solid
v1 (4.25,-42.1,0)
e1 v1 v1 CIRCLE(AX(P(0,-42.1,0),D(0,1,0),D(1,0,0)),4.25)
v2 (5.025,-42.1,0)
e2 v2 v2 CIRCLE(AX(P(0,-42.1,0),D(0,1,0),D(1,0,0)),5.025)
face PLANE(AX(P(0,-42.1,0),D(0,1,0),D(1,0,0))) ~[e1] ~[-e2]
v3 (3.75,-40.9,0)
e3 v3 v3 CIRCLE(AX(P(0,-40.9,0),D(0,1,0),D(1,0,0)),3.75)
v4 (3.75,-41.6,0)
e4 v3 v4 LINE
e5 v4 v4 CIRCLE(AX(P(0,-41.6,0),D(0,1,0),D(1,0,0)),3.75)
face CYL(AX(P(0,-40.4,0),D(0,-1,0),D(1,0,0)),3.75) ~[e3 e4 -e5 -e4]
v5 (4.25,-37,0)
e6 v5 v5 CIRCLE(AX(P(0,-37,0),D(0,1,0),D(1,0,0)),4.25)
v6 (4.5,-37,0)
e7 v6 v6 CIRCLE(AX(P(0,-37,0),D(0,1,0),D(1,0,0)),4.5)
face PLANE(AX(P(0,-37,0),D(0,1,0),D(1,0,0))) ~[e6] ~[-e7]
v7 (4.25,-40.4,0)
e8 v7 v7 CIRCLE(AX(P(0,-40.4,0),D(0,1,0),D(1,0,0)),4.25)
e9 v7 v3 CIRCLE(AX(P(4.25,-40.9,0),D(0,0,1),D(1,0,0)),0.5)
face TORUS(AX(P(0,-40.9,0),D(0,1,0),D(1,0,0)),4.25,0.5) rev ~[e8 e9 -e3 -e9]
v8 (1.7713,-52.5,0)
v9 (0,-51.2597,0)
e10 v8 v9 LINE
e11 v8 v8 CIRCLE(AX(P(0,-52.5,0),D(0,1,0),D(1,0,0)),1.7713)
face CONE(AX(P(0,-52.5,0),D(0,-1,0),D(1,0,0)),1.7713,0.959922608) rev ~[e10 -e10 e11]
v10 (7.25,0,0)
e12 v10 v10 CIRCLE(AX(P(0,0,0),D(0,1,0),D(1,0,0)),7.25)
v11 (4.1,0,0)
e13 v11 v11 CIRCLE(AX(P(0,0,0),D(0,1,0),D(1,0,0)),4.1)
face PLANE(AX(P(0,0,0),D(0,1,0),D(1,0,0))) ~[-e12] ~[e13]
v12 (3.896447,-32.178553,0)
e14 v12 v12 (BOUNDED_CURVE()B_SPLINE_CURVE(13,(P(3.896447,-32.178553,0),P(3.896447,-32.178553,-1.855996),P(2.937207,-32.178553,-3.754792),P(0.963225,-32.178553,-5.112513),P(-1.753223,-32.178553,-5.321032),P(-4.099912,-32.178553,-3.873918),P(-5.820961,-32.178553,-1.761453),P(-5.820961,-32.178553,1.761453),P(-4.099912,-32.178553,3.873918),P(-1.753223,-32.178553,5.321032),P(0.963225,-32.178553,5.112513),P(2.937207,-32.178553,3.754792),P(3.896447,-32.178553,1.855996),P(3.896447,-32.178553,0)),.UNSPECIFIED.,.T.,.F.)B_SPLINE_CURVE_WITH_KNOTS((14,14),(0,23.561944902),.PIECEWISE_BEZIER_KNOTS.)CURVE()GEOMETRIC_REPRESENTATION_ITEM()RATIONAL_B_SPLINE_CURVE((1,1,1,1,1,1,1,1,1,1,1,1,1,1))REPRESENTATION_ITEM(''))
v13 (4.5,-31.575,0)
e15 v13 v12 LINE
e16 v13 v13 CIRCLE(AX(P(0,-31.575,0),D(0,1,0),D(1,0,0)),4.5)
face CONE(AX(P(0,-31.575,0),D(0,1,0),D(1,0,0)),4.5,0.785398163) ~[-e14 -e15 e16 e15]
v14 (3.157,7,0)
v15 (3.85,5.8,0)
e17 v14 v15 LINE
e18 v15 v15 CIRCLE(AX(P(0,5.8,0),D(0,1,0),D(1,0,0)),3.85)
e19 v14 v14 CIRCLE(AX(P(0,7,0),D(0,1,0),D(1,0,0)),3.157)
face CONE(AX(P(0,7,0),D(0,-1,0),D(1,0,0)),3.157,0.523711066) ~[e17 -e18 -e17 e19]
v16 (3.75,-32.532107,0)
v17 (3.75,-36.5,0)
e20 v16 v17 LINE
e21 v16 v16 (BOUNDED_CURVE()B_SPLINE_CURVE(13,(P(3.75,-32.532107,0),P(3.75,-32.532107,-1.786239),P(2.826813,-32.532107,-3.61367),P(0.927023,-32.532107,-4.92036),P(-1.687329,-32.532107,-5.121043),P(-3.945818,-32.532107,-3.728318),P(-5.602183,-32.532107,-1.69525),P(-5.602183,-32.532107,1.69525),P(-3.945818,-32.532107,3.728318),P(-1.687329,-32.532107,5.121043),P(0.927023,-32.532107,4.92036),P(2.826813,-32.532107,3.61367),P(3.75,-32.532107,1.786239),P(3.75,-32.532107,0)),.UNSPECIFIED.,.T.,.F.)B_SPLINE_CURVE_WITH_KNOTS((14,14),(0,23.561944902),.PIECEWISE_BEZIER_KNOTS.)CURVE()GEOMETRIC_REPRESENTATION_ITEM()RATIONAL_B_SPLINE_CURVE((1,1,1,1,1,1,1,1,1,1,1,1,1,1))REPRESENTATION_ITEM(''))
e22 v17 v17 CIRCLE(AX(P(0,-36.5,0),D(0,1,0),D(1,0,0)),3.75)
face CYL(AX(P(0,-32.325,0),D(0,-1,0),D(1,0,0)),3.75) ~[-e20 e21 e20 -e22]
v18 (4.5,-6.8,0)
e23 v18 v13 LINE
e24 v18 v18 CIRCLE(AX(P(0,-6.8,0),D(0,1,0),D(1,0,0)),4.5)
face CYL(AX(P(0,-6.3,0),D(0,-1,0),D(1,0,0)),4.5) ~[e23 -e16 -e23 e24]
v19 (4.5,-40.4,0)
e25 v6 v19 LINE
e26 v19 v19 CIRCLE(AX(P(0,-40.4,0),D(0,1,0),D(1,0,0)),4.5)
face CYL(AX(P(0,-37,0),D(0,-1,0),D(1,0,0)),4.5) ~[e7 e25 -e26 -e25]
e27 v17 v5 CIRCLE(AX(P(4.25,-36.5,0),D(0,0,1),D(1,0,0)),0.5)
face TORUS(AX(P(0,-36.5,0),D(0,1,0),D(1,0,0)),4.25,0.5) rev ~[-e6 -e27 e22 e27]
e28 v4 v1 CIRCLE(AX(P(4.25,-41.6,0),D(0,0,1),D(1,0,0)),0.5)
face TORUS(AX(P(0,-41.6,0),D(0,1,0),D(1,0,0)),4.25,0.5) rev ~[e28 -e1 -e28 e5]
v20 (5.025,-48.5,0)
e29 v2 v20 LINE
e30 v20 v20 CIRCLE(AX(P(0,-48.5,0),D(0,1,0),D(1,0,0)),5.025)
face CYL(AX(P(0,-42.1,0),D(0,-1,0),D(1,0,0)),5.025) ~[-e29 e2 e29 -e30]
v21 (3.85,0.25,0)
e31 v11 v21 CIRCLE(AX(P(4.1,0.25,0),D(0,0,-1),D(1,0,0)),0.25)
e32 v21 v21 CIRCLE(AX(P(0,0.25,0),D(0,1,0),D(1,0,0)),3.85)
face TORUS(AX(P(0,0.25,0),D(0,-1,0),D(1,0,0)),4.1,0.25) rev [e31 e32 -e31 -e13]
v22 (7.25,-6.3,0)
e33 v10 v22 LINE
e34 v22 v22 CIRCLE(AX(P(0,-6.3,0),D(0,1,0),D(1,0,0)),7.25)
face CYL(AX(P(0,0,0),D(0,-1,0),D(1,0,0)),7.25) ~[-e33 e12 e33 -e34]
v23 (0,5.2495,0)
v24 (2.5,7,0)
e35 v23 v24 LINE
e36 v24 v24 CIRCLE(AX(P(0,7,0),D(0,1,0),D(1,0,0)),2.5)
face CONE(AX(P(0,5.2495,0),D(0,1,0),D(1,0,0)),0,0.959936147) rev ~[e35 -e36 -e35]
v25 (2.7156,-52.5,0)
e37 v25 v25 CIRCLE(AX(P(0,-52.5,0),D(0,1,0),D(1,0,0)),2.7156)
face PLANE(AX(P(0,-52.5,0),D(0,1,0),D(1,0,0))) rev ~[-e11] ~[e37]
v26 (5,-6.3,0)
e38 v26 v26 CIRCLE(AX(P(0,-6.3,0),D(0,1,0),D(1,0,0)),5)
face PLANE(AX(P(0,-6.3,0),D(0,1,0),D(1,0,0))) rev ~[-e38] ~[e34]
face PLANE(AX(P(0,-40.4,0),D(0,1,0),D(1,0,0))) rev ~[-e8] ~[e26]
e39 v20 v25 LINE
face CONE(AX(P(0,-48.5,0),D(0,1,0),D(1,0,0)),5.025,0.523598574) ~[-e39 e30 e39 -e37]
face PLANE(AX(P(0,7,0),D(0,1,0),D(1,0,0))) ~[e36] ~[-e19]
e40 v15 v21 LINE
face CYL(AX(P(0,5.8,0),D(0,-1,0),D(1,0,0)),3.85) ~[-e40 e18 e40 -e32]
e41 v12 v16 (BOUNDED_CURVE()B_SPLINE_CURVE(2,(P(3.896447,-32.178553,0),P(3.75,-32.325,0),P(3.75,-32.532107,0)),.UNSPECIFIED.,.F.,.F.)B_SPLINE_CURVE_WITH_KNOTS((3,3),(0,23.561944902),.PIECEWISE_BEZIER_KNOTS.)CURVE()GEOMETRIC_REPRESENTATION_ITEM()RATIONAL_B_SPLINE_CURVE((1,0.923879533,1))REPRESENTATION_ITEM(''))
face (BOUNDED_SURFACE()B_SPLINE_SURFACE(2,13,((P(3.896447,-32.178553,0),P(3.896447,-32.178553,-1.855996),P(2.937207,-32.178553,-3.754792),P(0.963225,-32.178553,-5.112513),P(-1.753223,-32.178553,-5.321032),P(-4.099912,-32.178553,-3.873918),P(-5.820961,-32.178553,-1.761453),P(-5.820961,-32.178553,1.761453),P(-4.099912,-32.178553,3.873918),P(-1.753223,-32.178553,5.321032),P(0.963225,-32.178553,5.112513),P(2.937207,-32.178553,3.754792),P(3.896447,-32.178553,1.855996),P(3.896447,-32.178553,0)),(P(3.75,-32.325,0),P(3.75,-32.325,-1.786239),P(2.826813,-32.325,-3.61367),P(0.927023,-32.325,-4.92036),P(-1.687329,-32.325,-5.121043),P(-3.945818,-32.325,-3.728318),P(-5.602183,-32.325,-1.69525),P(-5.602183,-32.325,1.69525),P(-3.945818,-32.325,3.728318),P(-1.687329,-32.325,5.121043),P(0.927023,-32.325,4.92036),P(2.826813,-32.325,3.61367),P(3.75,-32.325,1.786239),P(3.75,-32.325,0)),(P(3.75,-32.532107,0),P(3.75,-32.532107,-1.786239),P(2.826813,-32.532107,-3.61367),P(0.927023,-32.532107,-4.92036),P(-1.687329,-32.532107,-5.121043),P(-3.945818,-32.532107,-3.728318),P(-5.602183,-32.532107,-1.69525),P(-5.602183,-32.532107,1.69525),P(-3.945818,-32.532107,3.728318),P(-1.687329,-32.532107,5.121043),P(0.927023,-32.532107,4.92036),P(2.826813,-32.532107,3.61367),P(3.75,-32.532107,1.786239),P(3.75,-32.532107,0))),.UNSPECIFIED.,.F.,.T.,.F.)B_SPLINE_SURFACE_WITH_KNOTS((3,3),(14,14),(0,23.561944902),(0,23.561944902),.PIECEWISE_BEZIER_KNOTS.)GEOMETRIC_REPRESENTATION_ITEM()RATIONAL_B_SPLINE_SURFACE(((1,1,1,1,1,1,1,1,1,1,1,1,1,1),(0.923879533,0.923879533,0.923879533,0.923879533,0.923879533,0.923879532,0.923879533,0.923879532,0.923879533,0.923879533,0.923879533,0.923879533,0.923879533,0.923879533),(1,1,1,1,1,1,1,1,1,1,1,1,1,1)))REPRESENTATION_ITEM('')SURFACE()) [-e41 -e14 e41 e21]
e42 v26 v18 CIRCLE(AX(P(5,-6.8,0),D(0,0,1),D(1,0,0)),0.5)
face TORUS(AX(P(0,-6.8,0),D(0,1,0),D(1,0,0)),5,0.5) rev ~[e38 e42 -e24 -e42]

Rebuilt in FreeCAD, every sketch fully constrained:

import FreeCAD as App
import Part
import Sketcher
from FreeCAD import Vector
Q = App.Units.Quantity


def edges_at(feature, points):
    """Names of the edges that pass closest to the given points."""
    edges = feature.Shape.Edges
    near = lambda p: min(range(len(edges)), key=lambda i: edges[i].distToShape(Part.Vertex(*p))[0])
    return sorted({f"Edge{near(p) + 1}" for p in points})

doc = App.newDocument("Part")
body = doc.addObject("PartDesign::Body", "Body")

# Sketch on XY plane
sketch1 = doc.addObject("Sketcher::SketchObject", "Sketch")
body.addObject(sketch1)
sketch1.AttachmentSupport = (doc.XY_Plane, [""])
sketch1.MapMode = "FlatFace"
sketch1.addGeometry(Part.LineSegment(Vector(2.5, 7, 0), Vector(0, 5.2, 0)), False)
sketch1.addGeometry(Part.LineSegment(Vector(0, 5.2, 0), Vector(0, -51.3, 0)), False)
sketch1.addGeometry(Part.LineSegment(Vector(0, -51.3, 0), Vector(1.8, -52.5, 0)), False)
sketch1.addGeometry(Part.LineSegment(Vector(1.8, -52.5, 0), Vector(2.7, -52.5, 0)), False)
sketch1.addGeometry(Part.LineSegment(Vector(2.7, -52.5, 0), Vector(5, -48.5, 0)), False)
sketch1.addGeometry(Part.LineSegment(Vector(5, -48.5, 0), Vector(5, -42.1, 0)), False)
sketch1.addGeometry(Part.LineSegment(Vector(5, -42.1, 0), Vector(3.8, -42.1, 0)), False)
sketch1.addGeometry(Part.LineSegment(Vector(3.8, -42.1, 0), Vector(3.8, -40.4, 0)), False)
sketch1.addGeometry(Part.LineSegment(Vector(3.8, -40.4, 0), Vector(4.5, -40.4, 0)), False)
sketch1.addGeometry(Part.LineSegment(Vector(4.5, -40.4, 0), Vector(4.5, -37, 0)), False)
sketch1.addGeometry(Part.LineSegment(Vector(4.5, -37, 0), Vector(3.8, -37, 0)), False)
sketch1.addGeometry(Part.LineSegment(Vector(3.8, -37, 0), Vector(3.8, -32.3, 0)), False)
sketch1.addGeometry(Part.LineSegment(Vector(3.8, -32.3, 0), Vector(4.5, -31.6, 0)), False)
sketch1.addGeometry(Part.LineSegment(Vector(4.5, -31.6, 0), Vector(4.5, -6.3, 0)), False)
sketch1.addGeometry(Part.LineSegment(Vector(4.5, -6.3, 0), Vector(7.2, -6.3, 0)), False)
sketch1.addGeometry(Part.LineSegment(Vector(7.2, -6.3, 0), Vector(7.2, 0, 0)), False)
sketch1.addGeometry(Part.LineSegment(Vector(7.2, 0, 0), Vector(3.9, 0, 0)), False)
sketch1.addGeometry(Part.LineSegment(Vector(3.9, 0, 0), Vector(3.9, 5.8, 0)), False)
sketch1.addGeometry(Part.LineSegment(Vector(3.9, 5.8, 0), Vector(3.2, 7, 0)), False)
sketch1.addGeometry(Part.LineSegment(Vector(3.2, 7, 0), Vector(2.5, 7, 0)), False)
sketch1.addConstraint(Sketcher.Constraint("Coincident", 0, 2, 1, 1))
sketch1.addConstraint(Sketcher.Constraint("Coincident", 1, 2, 2, 1))
sketch1.addConstraint(Sketcher.Constraint("Coincident", 2, 2, 3, 1))
sketch1.addConstraint(Sketcher.Constraint("Coincident", 3, 2, 4, 1))
sketch1.addConstraint(Sketcher.Constraint("Coincident", 4, 2, 5, 1))
sketch1.addConstraint(Sketcher.Constraint("Coincident", 5, 2, 6, 1))
sketch1.addConstraint(Sketcher.Constraint("Coincident", 6, 2, 7, 1))
sketch1.addConstraint(Sketcher.Constraint("Coincident", 7, 2, 8, 1))
sketch1.addConstraint(Sketcher.Constraint("Coincident", 8, 2, 9, 1))
sketch1.addConstraint(Sketcher.Constraint("Coincident", 9, 2, 10, 1))
sketch1.addConstraint(Sketcher.Constraint("Coincident", 10, 2, 11, 1))
sketch1.addConstraint(Sketcher.Constraint("Coincident", 11, 2, 12, 1))
sketch1.addConstraint(Sketcher.Constraint("Coincident", 12, 2, 13, 1))
sketch1.addConstraint(Sketcher.Constraint("Coincident", 13, 2, 14, 1))
sketch1.addConstraint(Sketcher.Constraint("Coincident", 14, 2, 15, 1))
sketch1.addConstraint(Sketcher.Constraint("Coincident", 15, 2, 16, 1))
sketch1.addConstraint(Sketcher.Constraint("Coincident", 16, 2, 17, 1))
sketch1.addConstraint(Sketcher.Constraint("Coincident", 17, 2, 18, 1))
sketch1.addConstraint(Sketcher.Constraint("Coincident", 18, 2, 19, 1))
sketch1.addConstraint(Sketcher.Constraint("Coincident", 19, 2, 0, 1))
sketch1.addConstraint(Sketcher.Constraint("Vertical", 1))
sketch1.addConstraint(Sketcher.Constraint("Horizontal", 3))
sketch1.addConstraint(Sketcher.Constraint("Vertical", 5))
sketch1.addConstraint(Sketcher.Constraint("Horizontal", 6))
sketch1.addConstraint(Sketcher.Constraint("Vertical", 7))
sketch1.addConstraint(Sketcher.Constraint("Horizontal", 8))
sketch1.addConstraint(Sketcher.Constraint("Vertical", 9))
sketch1.addConstraint(Sketcher.Constraint("Horizontal", 10))
sketch1.addConstraint(Sketcher.Constraint("Vertical", 11))
sketch1.addConstraint(Sketcher.Constraint("Vertical", 13))
sketch1.addConstraint(Sketcher.Constraint("Horizontal", 14))
sketch1.addConstraint(Sketcher.Constraint("Vertical", 15))
sketch1.addConstraint(Sketcher.Constraint("Horizontal", 16))
sketch1.addConstraint(Sketcher.Constraint("Vertical", 17))
sketch1.addConstraint(Sketcher.Constraint("Horizontal", 19))
sketch1.addConstraint(Sketcher.Constraint("PointOnObject", 0, 2, -2))
sketch1.addConstraint(Sketcher.Constraint("PointOnObject", 15, 2, -1))
sketch1.addConstraint(Sketcher.Constraint("Vertical", 7, 2, 10, 2))
sketch1.addConstraint(Sketcher.Constraint("Vertical", 9, 2, 12, 2))
sketch1.addConstraint(Sketcher.Constraint("Equal", 16, 9))
sketch1.addConstraint(Sketcher.Constraint("Angle", 2, Q("-35.0005 deg")))
sketch1.addConstraint(Sketcher.Constraint("Angle", 12, Q("45 deg")))
sketch1.addConstraint(Sketcher.Constraint("DistanceX", 16, 2, 16, 1, 3.4))
sketch1.addConstraint(Sketcher.Constraint("DistanceY", 5, 1, 5, 2, 6.4))
sketch1.addConstraint(Sketcher.Constraint("DistanceY", 7, 1, 7, 2, 1.7))
sketch1.addConstraint(Sketcher.Constraint("DistanceY", 15, 1, 15, 2, 6.3))
sketch1.addConstraint(Sketcher.Constraint("DistanceY", -1, 1, 18, 2, 7.0))
sketch1.addConstraint(Sketcher.Constraint("DistanceY", 3, 2, 4, 2, 4.0))
sketch1.addConstraint(Sketcher.Constraint("DistanceY", 2, 2, -1, 1, 52.5))
sketch1.addConstraint(Sketcher.Constraint("DistanceX", -1, 1, 8, 2, 4.5))
sketch1.addConstraint(Sketcher.Constraint("DistanceX", -1, 1, 19, 2, 2.5))
sketch1.addConstraint(Sketcher.Constraint("DistanceY", 17, 2, 18, 2, 1.2))
sketch1.addConstraint(Sketcher.Constraint("DistanceX", -1, 1, 6, 2, 3.75))
sketch1.addConstraint(Sketcher.Constraint("DistanceX", -1, 1, 14, 2, 7.25))
sketch1.addConstraint(Sketcher.Constraint("Angle", 0, Q("-145.0003 deg")))
sketch1.addConstraint(Sketcher.Constraint("Angle", 4, Q("60 deg")))
sketch1.addConstraint(Sketcher.Constraint("DistanceX", 3, 1, 3, 2, 0.9443))
sketch1.addConstraint(Sketcher.Constraint("DistanceX", -1, 1, 4, 2, 5.025))
sketch1.addConstraint(Sketcher.Constraint("DistanceX", -1, 1, 18, 2, 3.157))
sketch1.addConstraint(Sketcher.Constraint("DistanceY", 9, 2, 12, 2, 5.425))
revolution = doc.addObject("PartDesign::Revolution", "Revolution")
body.addObject(revolution)
revolution.Profile = sketch1
revolution.ReferenceAxis = (sketch1, ["V_Axis"])
revolution.Angle = 360
doc.recompute()

fillet = doc.addObject("PartDesign::Fillet", "Fillet")
body.addObject(fillet)
fillet.Base = (revolution, edges_at(revolution, [
    (-3.75, -42.1, 0),
    (-3.75, -40.4, 0),
    (-3.75, -32.325, 0),
    (-4.5, -6.3, 0),
    (-3.75, -37, 0),
]))
fillet.Radius = 0.5
doc.recompute()

fillet2 = doc.addObject("PartDesign::Fillet", "Fillet001")
body.addObject(fillet2)
fillet2.Base = (fillet, edges_at(fillet, [(-3.85, 0, 0)]))
fillet2.Radius = 0.25

doc.recompute()
